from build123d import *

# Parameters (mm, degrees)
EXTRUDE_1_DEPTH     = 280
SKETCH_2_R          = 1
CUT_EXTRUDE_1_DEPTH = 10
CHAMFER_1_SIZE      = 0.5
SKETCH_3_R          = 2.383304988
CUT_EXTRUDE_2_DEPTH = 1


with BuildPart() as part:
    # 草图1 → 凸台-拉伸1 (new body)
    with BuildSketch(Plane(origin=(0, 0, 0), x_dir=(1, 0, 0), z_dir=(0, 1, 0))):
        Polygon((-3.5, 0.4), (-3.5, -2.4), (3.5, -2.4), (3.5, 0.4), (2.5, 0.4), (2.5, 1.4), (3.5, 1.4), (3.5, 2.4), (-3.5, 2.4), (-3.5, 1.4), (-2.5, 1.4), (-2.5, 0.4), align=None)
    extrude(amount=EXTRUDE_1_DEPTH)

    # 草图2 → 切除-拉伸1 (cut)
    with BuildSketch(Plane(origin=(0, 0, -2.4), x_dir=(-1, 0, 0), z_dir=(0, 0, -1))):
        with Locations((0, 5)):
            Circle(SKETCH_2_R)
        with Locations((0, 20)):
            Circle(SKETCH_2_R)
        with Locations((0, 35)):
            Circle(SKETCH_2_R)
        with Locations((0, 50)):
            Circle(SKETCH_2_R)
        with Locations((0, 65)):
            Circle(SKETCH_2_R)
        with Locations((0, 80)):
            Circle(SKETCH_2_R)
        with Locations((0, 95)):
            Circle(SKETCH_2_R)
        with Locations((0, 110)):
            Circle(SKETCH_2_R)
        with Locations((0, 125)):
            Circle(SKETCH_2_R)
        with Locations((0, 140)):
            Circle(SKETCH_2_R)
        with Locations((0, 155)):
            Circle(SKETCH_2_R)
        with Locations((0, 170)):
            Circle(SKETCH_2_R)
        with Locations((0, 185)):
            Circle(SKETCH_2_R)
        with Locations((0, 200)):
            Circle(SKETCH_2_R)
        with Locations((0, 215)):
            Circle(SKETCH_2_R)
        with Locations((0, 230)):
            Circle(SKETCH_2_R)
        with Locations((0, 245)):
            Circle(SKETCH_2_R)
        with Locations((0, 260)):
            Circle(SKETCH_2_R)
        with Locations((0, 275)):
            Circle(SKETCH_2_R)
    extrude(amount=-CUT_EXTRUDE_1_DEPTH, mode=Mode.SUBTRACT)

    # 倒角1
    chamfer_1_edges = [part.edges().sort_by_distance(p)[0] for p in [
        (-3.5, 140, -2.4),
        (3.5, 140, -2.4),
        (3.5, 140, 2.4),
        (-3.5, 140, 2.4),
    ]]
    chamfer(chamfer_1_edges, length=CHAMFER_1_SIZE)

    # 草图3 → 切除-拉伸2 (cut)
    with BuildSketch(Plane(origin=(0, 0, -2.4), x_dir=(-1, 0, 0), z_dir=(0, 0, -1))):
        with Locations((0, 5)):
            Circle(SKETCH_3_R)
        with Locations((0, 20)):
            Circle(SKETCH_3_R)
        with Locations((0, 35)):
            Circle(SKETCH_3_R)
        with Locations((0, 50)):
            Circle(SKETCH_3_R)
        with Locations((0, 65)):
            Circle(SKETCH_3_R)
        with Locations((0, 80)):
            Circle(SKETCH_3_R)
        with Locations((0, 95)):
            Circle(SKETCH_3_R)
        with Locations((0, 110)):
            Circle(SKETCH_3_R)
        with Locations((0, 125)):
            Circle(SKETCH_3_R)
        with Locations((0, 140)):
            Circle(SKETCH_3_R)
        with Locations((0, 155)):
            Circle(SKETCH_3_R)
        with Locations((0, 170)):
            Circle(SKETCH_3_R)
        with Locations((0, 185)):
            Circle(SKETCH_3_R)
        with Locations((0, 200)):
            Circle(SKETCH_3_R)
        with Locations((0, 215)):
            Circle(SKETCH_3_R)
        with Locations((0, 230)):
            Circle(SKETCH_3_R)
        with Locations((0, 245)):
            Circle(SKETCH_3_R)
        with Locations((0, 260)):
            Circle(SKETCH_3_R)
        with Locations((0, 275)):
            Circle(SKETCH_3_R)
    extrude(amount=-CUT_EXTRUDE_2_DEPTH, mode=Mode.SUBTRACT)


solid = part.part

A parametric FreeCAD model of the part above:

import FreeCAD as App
import Part
import Sketcher
from FreeCAD import Vector
Q = App.Units.Quantity


def edges_at(feature, points):
    """Names of the edges that pass closest to the given points."""
    edges = feature.Shape.Edges
    near = lambda p: min(range(len(edges)), key=lambda i: edges[i].distToShape(Part.Vertex(*p))[0])
    return sorted({f"Edge{near(p) + 1}" for p in points})


def add_polygon(sketch, points):
    """Adds a closed chain of lines whose ends are joined by coincident constraints."""
    first, n = sketch.GeometryCount, len(points)
    for a, b in zip(points, points[1:] + points[:1]):
        sketch.addGeometry(Part.LineSegment(App.Vector(*a, 0), App.Vector(*b, 0)), False)
    for i in range(n):
        sketch.addConstraint(Sketcher.Constraint("Coincident", first + i, 2, first + (i + 1) % n, 1))

doc = App.newDocument("Part")
body = doc.addObject("PartDesign::Body", "Body")

sketch1 = body.newObject("Sketcher::SketchObject", "Sketch")
sketch1.AttachmentSupport = (doc.getObject("XZ_Plane"), [""])
sketch1.MapMode = "FlatFace"
add_polygon(sketch1, [(-3.5, -0.4), (-3.5, 2.4), (3.5, 2.4), (3.5, -0.4), (2.5, -0.4), (2.5, -1.4), (3.5, -1.4), (3.5, -2.4), (-3.5, -2.4), (-3.5, -1.4), (-2.5, -1.4), (-2.5, -0.4)])
sketch1.addConstraint([
    Sketcher.Constraint("Vertical", 0),
    Sketcher.Constraint("Horizontal", 1),
    Sketcher.Constraint("Vertical", 2),
    Sketcher.Constraint("Horizontal", 3),
    Sketcher.Constraint("Vertical", 4),
    Sketcher.Constraint("Horizontal", 5),
    Sketcher.Constraint("Vertical", 6),
    Sketcher.Constraint("Horizontal", 7),
    Sketcher.Constraint("Vertical", 8),
    Sketcher.Constraint("Horizontal", 9),
    Sketcher.Constraint("Vertical", 10),
    Sketcher.Constraint("Horizontal", 11),
    Sketcher.Constraint("Symmetric", 0, 2, 6, 2, -1, 1),
    Sketcher.Constraint("Symmetric", 5, 2, 8, 2, -2),
    Sketcher.Constraint("Symmetric", 3, 2, 10, 2, -2),
    Sketcher.Constraint("Vertical", 2, 2, 5, 2),
    Sketcher.Constraint("Equal", 11, 4),
    Sketcher.Constraint("Equal", 4, 6),
    Sketcher.Constraint("DistanceX", 1, 1, 1, 2, Q("7 mm")),
    Sketcher.Constraint("DistanceX", 3, 2, 3, 1, Q("1 mm")),
    Sketcher.Constraint("DistanceY", 0, 1, 0, 2, Q("2.8 mm")),
])
pad1 = body.newObject("PartDesign::Pad", "Pad")
pad1.Profile = sketch1
pad1.Length = 280
pad1.Reversed = True

sketch2 = body.newObject("Sketcher::SketchObject", "Sketch001")
sketch2.AttachmentSupport = (doc.getObject("XY_Plane"), [""])
sketch2.MapMode = "FlatFace"
sketch2.AttachmentOffset = App.Placement(Vector(0, 0, -2.4), App.Rotation())
sketch2.addGeometry([
    Part.Circle(Vector(0, 5, 0), Vector(0, 0, 1), 1),
    Part.Circle(Vector(0, 20, 0), Vector(0, 0, 1), 1),
    Part.Circle(Vector(0, 35, 0), Vector(0, 0, 1), 1),
    Part.Circle(Vector(0, 50, 0), Vector(0, 0, 1), 1),
    Part.Circle(Vector(0, 65, 0), Vector(0, 0, 1), 1),
    Part.Circle(Vector(0, 80, 0), Vector(0, 0, 1), 1),
    Part.Circle(Vector(0, 95, 0), Vector(0, 0, 1), 1),
    Part.Circle(Vector(0, 110, 0), Vector(0, 0, 1), 1),
    Part.Circle(Vector(0, 125, 0), Vector(0, 0, 1), 1),
    Part.Circle(Vector(0, 140, 0), Vector(0, 0, 1), 1),
    Part.Circle(Vector(0, 155, 0), Vector(0, 0, 1), 1),
    Part.Circle(Vector(0, 170, 0), Vector(0, 0, 1), 1),
    Part.Circle(Vector(0, 185, 0), Vector(0, 0, 1), 1),
    Part.Circle(Vector(0, 200, 0), Vector(0, 0, 1), 1),
    Part.Circle(Vector(0, 215, 0), Vector(0, 0, 1), 1),
    Part.Circle(Vector(0, 230, 0), Vector(0, 0, 1), 1),
    Part.Circle(Vector(0, 245, 0), Vector(0, 0, 1), 1),
    Part.Circle(Vector(0, 260, 0), Vector(0, 0, 1), 1),
    Part.Circle(Vector(0, 275, 0), Vector(0, 0, 1), 1),
], False)
sketch2.addConstraint([
    Sketcher.Constraint("Equal", 0, 1),
    Sketcher.Constraint("Equal", 1, 2),
    Sketcher.Constraint("Equal", 2, 3),
    Sketcher.Constraint("Equal", 3, 4),
    Sketcher.Constraint("Equal", 4, 5),
    Sketcher.Constraint("Equal", 5, 6),
    Sketcher.Constraint("Equal", 6, 7),
    Sketcher.Constraint("Equal", 7, 8),
    Sketcher.Constraint("Equal", 8, 9),
    Sketcher.Constraint("Equal", 9, 10),
    Sketcher.Constraint("Equal", 10, 11),
    Sketcher.Constraint("Equal", 11, 12),
    Sketcher.Constraint("Equal", 12, 13),
    Sketcher.Constraint("Equal", 13, 14),
    Sketcher.Constraint("Equal", 14, 15),
    Sketcher.Constraint("Equal", 15, 16),
    Sketcher.Constraint("Equal", 16, 17),
    Sketcher.Constraint("Equal", 17, 18),
    Sketcher.Constraint("PointOnObject", 0, 3, -2),
    Sketcher.Constraint("PointOnObject", 1, 3, -2),
    Sketcher.Constraint("PointOnObject", 2, 3, -2),
    Sketcher.Constraint("PointOnObject", 3, 3, -2),
    Sketcher.Constraint("PointOnObject", 4, 3, -2),
    Sketcher.Constraint("PointOnObject", 5, 3, -2),
    Sketcher.Constraint("PointOnObject", 6, 3, -2),
    Sketcher.Constraint("PointOnObject", 7, 3, -2),
    Sketcher.Constraint("PointOnObject", 8, 3, -2),
    Sketcher.Constraint("PointOnObject", 9, 3, -2),
    Sketcher.Constraint("PointOnObject", 10, 3, -2),
    Sketcher.Constraint("PointOnObject", 11, 3, -2),
    Sketcher.Constraint("PointOnObject", 12, 3, -2),
    Sketcher.Constraint("PointOnObject", 13, 3, -2),
    Sketcher.Constraint("PointOnObject", 14, 3, -2),
    Sketcher.Constraint("PointOnObject", 15, 3, -2),
    Sketcher.Constraint("PointOnObject", 16, 3, -2),
    Sketcher.Constraint("PointOnObject", 17, 3, -2),
    Sketcher.Constraint("PointOnObject", 18, 3, -2),
    Sketcher.Constraint("Diameter", 0, Q("2 mm")),
    Sketcher.Constraint("DistanceY", -1, 1, 0, 3, Q("5 mm")),
    Sketcher.Constraint("DistanceY", -1, 1, 1, 3, Q("20 mm")),
    Sketcher.Constraint("DistanceY", -1, 1, 2, 3, Q("35 mm")),
    Sketcher.Constraint("DistanceY", -1, 1, 3, 3, Q("50 mm")),
    Sketcher.Constraint("DistanceY", -1, 1, 4, 3, Q("65 mm")),
    Sketcher.Constraint("DistanceY", -1, 1, 5, 3, Q("80 mm")),
    Sketcher.Constraint("DistanceY", -1, 1, 6, 3, Q("95 mm")),
    Sketcher.Constraint("DistanceY", -1, 1, 7, 3, Q("110 mm")),
    Sketcher.Constraint("DistanceY", -1, 1, 8, 3, Q("125 mm")),
    Sketcher.Constraint("DistanceY", -1, 1, 9, 3, Q("140 mm")),
    Sketcher.Constraint("DistanceY", -1, 1, 10, 3, Q("155 mm")),
    Sketcher.Constraint("DistanceY", -1, 1, 11, 3, Q("170 mm")),
    Sketcher.Constraint("DistanceY", -1, 1, 12, 3, Q("185 mm")),
    Sketcher.Constraint("DistanceY", -1, 1, 13, 3, Q("200 mm")),
    Sketcher.Constraint("DistanceY", -1, 1, 14, 3, Q("215 mm")),
    Sketcher.Constraint("DistanceY", -1, 1, 15, 3, Q("230 mm")),
    Sketcher.Constraint("DistanceY", -1, 1, 16, 3, Q("245 mm")),
    Sketcher.Constraint("DistanceY", -1, 1, 17, 3, Q("260 mm")),
    Sketcher.Constraint("DistanceY", -1, 1, 18, 3, Q("275 mm")),
])
pocket1 = body.newObject("PartDesign::Pocket", "Pocket")
pocket1.Profile = sketch2
pocket1.Length = 10
pocket1.Reversed = True
doc.recompute()

chamfer = body.newObject("PartDesign::Chamfer", "Chamfer")
chamfer.Base = (pocket1, edges_at(pocket1, [
    (-3.5, 140, -2.4),
    (3.5, 140, -2.4),
    (3.5, 140, 2.4),
    (-3.5, 140, 2.4),
]))
chamfer.Size = 0.5

sketch3 = body.newObject("Sketcher::SketchObject", "Sketch002")
sketch3.AttachmentSupport = (doc.getObject("XY_Plane"), [""])
sketch3.MapMode = "FlatFace"
sketch3.AttachmentOffset = App.Placement(Vector(0, 0, -2.4), App.Rotation())
sketch3.addGeometry([
    Part.Circle(Vector(0, 5, 0), Vector(0, 0, 1), 2.383305),
    Part.Circle(Vector(0, 20, 0), Vector(0, 0, 1), 2.383305),
    Part.Circle(Vector(0, 35, 0), Vector(0, 0, 1), 2.383305),
    Part.Circle(Vector(0, 50, 0), Vector(0, 0, 1), 2.383305),
    Part.Circle(Vector(0, 65, 0), Vector(0, 0, 1), 2.383305),
    Part.Circle(Vector(0, 80, 0), Vector(0, 0, 1), 2.383305),
    Part.Circle(Vector(0, 95, 0), Vector(0, 0, 1), 2.383305),
    Part.Circle(Vector(0, 110, 0), Vector(0, 0, 1), 2.383305),
    Part.Circle(Vector(0, 125, 0), Vector(0, 0, 1), 2.383305),
    Part.Circle(Vector(0, 140, 0), Vector(0, 0, 1), 2.383305),
    Part.Circle(Vector(0, 155, 0), Vector(0, 0, 1), 2.383305),
    Part.Circle(Vector(0, 170, 0), Vector(0, 0, 1), 2.383305),
    Part.Circle(Vector(0, 185, 0), Vector(0, 0, 1), 2.383305),
    Part.Circle(Vector(0, 200, 0), Vector(0, 0, 1), 2.383305),
    Part.Circle(Vector(0, 215, 0), Vector(0, 0, 1), 2.383305),
    Part.Circle(Vector(0, 230, 0), Vector(0, 0, 1), 2.383305),
    Part.Circle(Vector(0, 245, 0), Vector(0, 0, 1), 2.383305),
    Part.Circle(Vector(0, 260, 0), Vector(0, 0, 1), 2.383305),
    Part.Circle(Vector(0, 275, 0), Vector(0, 0, 1), 2.383305),
], False)
sketch3.addConstraint([
    Sketcher.Constraint("Equal", 0, 1),
    Sketcher.Constraint("Equal", 1, 2),
    Sketcher.Constraint("Equal", 2, 3),
    Sketcher.Constraint("Equal", 3, 4),
    Sketcher.Constraint("Equal", 4, 5),
    Sketcher.Constraint("Equal", 5, 6),
    Sketcher.Constraint("Equal", 6, 7),
    Sketcher.Constraint("Equal", 7, 8),
    Sketcher.Constraint("Equal", 8, 9),
    Sketcher.Constraint("Equal", 9, 10),
    Sketcher.Constraint("Equal", 10, 11),
    Sketcher.Constraint("Equal", 11, 12),
    Sketcher.Constraint("Equal", 12, 13),
    Sketcher.Constraint("Equal", 13, 14),
    Sketcher.Constraint("Equal", 14, 15),
    Sketcher.Constraint("Equal", 15, 16),
    Sketcher.Constraint("Equal", 16, 17),
    Sketcher.Constraint("Equal", 17, 18),
    Sketcher.Constraint("PointOnObject", 0, 3, -2),
    Sketcher.Constraint("PointOnObject", 1, 3, -2),
    Sketcher.Constraint("PointOnObject", 2, 3, -2),
    Sketcher.Constraint("PointOnObject", 3, 3, -2),
    Sketcher.Constraint("PointOnObject", 4, 3, -2),
    Sketcher.Constraint("PointOnObject", 5, 3, -2),
    Sketcher.Constraint("PointOnObject", 6, 3, -2),
    Sketcher.Constraint("PointOnObject", 7, 3, -2),
    Sketcher.Constraint("PointOnObject", 8, 3, -2),
    Sketcher.Constraint("PointOnObject", 9, 3, -2),
    Sketcher.Constraint("PointOnObject", 10, 3, -2),
    Sketcher.Constraint("PointOnObject", 11, 3, -2),
    Sketcher.Constraint("PointOnObject", 12, 3, -2),
    Sketcher.Constraint("PointOnObject", 13, 3, -2),
    Sketcher.Constraint("PointOnObject", 14, 3, -2),
    Sketcher.Constraint("PointOnObject", 15, 3, -2),
    Sketcher.Constraint("PointOnObject", 16, 3, -2),
    Sketcher.Constraint("PointOnObject", 17, 3, -2),
    Sketcher.Constraint("PointOnObject", 18, 3, -2),
    Sketcher.Constraint("DistanceY", -1, 1, 0, 3, Q("5 mm")),
    Sketcher.Constraint("DistanceY", -1, 1, 1, 3, Q("20 mm")),
    Sketcher.Constraint("DistanceY", -1, 1, 2, 3, Q("35 mm")),
    Sketcher.Constraint("DistanceY", -1, 1, 3, 3, Q("50 mm")),
    Sketcher.Constraint("DistanceY", -1, 1, 4, 3, Q("65 mm")),
    Sketcher.Constraint("DistanceY", -1, 1, 5, 3, Q("80 mm")),
    Sketcher.Constraint("DistanceY", -1, 1, 6, 3, Q("95 mm")),
    Sketcher.Constraint("DistanceY", -1, 1, 7, 3, Q("110 mm")),
    Sketcher.Constraint("DistanceY", -1, 1, 8, 3, Q("125 mm")),
    Sketcher.Constraint("DistanceY", -1, 1, 9, 3, Q("140 mm")),
    Sketcher.Constraint("DistanceY", -1, 1, 10, 3, Q("155 mm")),
    Sketcher.Constraint("DistanceY", -1, 1, 11, 3, Q("170 mm")),
    Sketcher.Constraint("DistanceY", -1, 1, 12, 3, Q("185 mm")),
    Sketcher.Constraint("DistanceY", -1, 1, 13, 3, Q("200 mm")),
    Sketcher.Constraint("DistanceY", -1, 1, 14, 3, Q("215 mm")),
    Sketcher.Constraint("DistanceY", -1, 1, 15, 3, Q("230 mm")),
    Sketcher.Constraint("DistanceY", -1, 1, 16, 3, Q("245 mm")),
    Sketcher.Constraint("DistanceY", -1, 1, 17, 3, Q("260 mm")),
    Sketcher.Constraint("DistanceY", -1, 1, 18, 3, Q("275 mm")),
    Sketcher.Constraint("Diameter", 0, Q("4.76661 mm")),
])
pocket2 = body.newObject("PartDesign::Pocket", "Pocket001")
pocket2.Profile = sketch3
pocket2.Length = 1
pocket2.Reversed = True

doc.recompute()
